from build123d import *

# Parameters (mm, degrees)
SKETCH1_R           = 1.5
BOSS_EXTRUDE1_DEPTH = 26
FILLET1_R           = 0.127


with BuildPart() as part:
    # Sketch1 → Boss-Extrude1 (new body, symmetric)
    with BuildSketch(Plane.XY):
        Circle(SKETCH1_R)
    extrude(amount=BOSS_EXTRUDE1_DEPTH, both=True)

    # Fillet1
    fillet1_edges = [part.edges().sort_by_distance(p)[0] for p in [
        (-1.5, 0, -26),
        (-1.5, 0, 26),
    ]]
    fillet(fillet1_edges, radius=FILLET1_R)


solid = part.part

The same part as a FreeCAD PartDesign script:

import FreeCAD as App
import Part
import Sketcher
Q = App.Units.Quantity


def edges_at(feature, points):
    """Names of the edges that pass closest to the given points."""
    edges = feature.Shape.Edges
    near = lambda p: min(range(len(edges)), key=lambda i: edges[i].distToShape(Part.Vertex(*p))[0])
    return sorted({f"Edge{near(p) + 1}" for p in points})

doc = App.newDocument("Part")
body = doc.addObject("PartDesign::Body", "Body")

# Sketch on XY plane
sketch1 = body.newObject("Sketcher::SketchObject", "Sketch")
sketch1.AttachmentSupport = (doc.getObject("XY_Plane"), [""])
sketch1.MapMode = "FlatFace"
sketch1.addGeometry(Part.Circle(App.Vector(0, 0, 0), App.Vector(0, 0, 1), 1.5), False)
sketch1.addConstraint(Sketcher.Constraint("Coincident", 0, 3, -1, 1))
sketch1.addConstraint(Sketcher.Constraint("Diameter", 0, Q("3 mm")))
pad1 = body.newObject("PartDesign::Pad", "Pad")
pad1.Profile = sketch1
pad1.Length = 52
pad1.Midplane = True
doc.recompute()

fillet = body.newObject("PartDesign::Fillet", "Fillet")
fillet.Base = (pad1, edges_at(pad1, [(-1.5, 0, -26), (-1.5, 0, 26)]))
fillet.Radius = 0.127

doc.recompute()
